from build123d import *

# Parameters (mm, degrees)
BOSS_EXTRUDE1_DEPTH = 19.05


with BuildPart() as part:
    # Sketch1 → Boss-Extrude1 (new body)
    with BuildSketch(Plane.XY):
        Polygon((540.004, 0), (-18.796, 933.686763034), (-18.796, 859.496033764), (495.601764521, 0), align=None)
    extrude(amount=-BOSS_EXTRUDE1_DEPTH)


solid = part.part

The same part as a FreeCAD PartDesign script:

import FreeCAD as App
import Part
import Sketcher
from FreeCAD import Vector
Q = App.Units.Quantity


def add_polygon(sketch, points):
    """Adds a closed chain of lines whose ends are joined by coincident constraints."""
    first, n = sketch.GeometryCount, len(points)
    for a, b in zip(points, points[1:] + points[:1]):
        sketch.addGeometry(Part.LineSegment(App.Vector(*a, 0), App.Vector(*b, 0)), False)
    for i in range(n):
        sketch.addConstraint(Sketcher.Constraint("Coincident", first + i, 2, first + (i + 1) % n, 1))

doc = App.newDocument("Part")
params = doc.addObject("Spreadsheet::Sheet", "Params")
for row, (alias, value) in enumerate([
    ("pad1_length", "0.75 in"),
], start=1):
    params.set(f"A{row}", alias)
    params.set(f"B{row}", "=" + value)
    params.setAlias(f"B{row}", alias)

body = doc.addObject("PartDesign::Body", "Body")

# Sketch on XY plane
sketch1 = body.newObject("Sketcher::SketchObject", "Sketch")
sketch1.AttachmentSupport = (doc.getObject("XY_Plane"), [""])
sketch1.MapMode = "FlatFace"
add_polygon(sketch1, [(540, 0), (-19, 934), (-19, 859), (496, 0)])  # lines 0-3
sketch1.addConstraint([
    Sketcher.Constraint("Vertical", 1),
    Sketcher.Constraint("Horizontal", 3),
    Sketcher.Constraint("PointOnObject", 2, 2, -1),
    Sketcher.Constraint("Parallel", 0, 2),
    Sketcher.Constraint("DistanceX", 1, 2, 3, 2, Q("22 in")),
    Sketcher.Constraint("Angle", 0, Q("120.9 deg")),
    Sketcher.Constraint("DistanceX", 0, 2, -1, 1, Q("0.74 in")),
    Sketcher.Constraint("DistanceY", 1, 2, 1, 1, 74.190729),
])
pad1 = body.newObject("PartDesign::Pad", "Pad")
pad1.Profile = sketch1
pad1.setExpression("Length", "Params.pad1_length")
pad1.Reversed = True

doc.recompute()
